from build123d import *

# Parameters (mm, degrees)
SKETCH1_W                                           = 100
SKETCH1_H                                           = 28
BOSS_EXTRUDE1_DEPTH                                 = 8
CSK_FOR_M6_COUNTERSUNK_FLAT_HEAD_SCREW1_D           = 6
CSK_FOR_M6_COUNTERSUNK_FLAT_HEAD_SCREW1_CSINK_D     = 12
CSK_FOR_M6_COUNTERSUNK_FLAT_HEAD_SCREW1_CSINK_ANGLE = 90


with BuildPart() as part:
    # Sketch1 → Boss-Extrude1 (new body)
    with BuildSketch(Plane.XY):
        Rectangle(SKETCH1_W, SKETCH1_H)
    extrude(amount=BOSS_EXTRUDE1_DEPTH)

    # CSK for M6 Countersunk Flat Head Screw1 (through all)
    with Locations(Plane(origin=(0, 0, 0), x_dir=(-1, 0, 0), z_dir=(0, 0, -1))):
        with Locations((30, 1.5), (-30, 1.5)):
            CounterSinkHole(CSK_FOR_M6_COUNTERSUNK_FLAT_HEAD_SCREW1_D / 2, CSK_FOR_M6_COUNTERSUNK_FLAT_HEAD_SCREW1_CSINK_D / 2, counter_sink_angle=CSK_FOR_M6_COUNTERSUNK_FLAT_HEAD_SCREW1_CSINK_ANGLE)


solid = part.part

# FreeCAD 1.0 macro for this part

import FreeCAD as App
import Part
import Sketcher
Q = App.Units.Quantity


def add_polygon(sketch, points):
    """Adds a closed chain of lines whose ends are joined by coincident constraints."""
    first, n = sketch.GeometryCount, len(points)
    for a, b in zip(points, points[1:] + points[:1]):
        sketch.addGeometry(Part.LineSegment(App.Vector(*a, 0), App.Vector(*b, 0)), False)
    for i in range(n):
        sketch.addConstraint(Sketcher.Constraint("Coincident", first + i, 2, first + (i + 1) % n, 1))

doc = App.newDocument("Part")
body = doc.addObject("PartDesign::Body", "Body")

# Sketch on XY plane
sketch1 = body.newObject("Sketcher::SketchObject", "Sketch")
sketch1.AttachmentSupport = (doc.getObject("XY_Plane"), [""])
sketch1.MapMode = "FlatFace"
add_polygon(sketch1, [(-50, 14), (-50, -14), (50, -14), (50, 14)])  # lines 0-3
sketch1.addConstraint([
    Sketcher.Constraint("Vertical", 0),
    Sketcher.Constraint("Horizontal", 1),
    Sketcher.Constraint("Vertical", 2),
    Sketcher.Constraint("Horizontal", 3),
    Sketcher.Constraint("Symmetric", 0, 2, 2, 2, -1, 1),
    Sketcher.Constraint("DistanceX", 1, 1, 1, 2, Q("100 mm")),
    Sketcher.Constraint("DistanceY", 0, 2, 0, 1, Q("28 mm")),
])
pad1 = body.newObject("PartDesign::Pad", "Pad")
pad1.Profile = sketch1
pad1.Length = 8

# Sketch on XY plane
sketch2 = body.newObject("Sketcher::SketchObject", "Sketch001")
sketch2.AttachmentSupport = (doc.getObject("XY_Plane"), [""])
sketch2.MapMode = "FlatFace"
sketch2.addGeometry([
    Part.Circle(App.Vector(-30, 1.5, 0), App.Vector(0, 0, 1), 3),
    Part.Circle(App.Vector(30, 1.5, 0), App.Vector(0, 0, 1), 3),
], False)
sketch2.addConstraint([
    Sketcher.Constraint("Equal", 0, 1),
    Sketcher.Constraint("Symmetric", 0, 3, 1, 3, -2),
    Sketcher.Constraint("Diameter", 0, Q("6 mm")),
    Sketcher.Constraint("DistanceX", 0, 3, -1, 1, Q("30 mm")),
    Sketcher.Constraint("DistanceY", -1, 1, 0, 3, Q("1.5 mm")),
])
doc.recompute()
hole = body.newObject("PartDesign::Hole", "Hole")
hole.Profile = sketch2
hole.ThreadType = "None"
hole.Diameter = 6
hole.DepthType = "ThroughAll"
hole.HoleCutType = "Countersink"
hole.HoleCutDiameter = 12
hole.HoleCutCountersinkAngle = 90
hole.Reversed = True

doc.recompute()
